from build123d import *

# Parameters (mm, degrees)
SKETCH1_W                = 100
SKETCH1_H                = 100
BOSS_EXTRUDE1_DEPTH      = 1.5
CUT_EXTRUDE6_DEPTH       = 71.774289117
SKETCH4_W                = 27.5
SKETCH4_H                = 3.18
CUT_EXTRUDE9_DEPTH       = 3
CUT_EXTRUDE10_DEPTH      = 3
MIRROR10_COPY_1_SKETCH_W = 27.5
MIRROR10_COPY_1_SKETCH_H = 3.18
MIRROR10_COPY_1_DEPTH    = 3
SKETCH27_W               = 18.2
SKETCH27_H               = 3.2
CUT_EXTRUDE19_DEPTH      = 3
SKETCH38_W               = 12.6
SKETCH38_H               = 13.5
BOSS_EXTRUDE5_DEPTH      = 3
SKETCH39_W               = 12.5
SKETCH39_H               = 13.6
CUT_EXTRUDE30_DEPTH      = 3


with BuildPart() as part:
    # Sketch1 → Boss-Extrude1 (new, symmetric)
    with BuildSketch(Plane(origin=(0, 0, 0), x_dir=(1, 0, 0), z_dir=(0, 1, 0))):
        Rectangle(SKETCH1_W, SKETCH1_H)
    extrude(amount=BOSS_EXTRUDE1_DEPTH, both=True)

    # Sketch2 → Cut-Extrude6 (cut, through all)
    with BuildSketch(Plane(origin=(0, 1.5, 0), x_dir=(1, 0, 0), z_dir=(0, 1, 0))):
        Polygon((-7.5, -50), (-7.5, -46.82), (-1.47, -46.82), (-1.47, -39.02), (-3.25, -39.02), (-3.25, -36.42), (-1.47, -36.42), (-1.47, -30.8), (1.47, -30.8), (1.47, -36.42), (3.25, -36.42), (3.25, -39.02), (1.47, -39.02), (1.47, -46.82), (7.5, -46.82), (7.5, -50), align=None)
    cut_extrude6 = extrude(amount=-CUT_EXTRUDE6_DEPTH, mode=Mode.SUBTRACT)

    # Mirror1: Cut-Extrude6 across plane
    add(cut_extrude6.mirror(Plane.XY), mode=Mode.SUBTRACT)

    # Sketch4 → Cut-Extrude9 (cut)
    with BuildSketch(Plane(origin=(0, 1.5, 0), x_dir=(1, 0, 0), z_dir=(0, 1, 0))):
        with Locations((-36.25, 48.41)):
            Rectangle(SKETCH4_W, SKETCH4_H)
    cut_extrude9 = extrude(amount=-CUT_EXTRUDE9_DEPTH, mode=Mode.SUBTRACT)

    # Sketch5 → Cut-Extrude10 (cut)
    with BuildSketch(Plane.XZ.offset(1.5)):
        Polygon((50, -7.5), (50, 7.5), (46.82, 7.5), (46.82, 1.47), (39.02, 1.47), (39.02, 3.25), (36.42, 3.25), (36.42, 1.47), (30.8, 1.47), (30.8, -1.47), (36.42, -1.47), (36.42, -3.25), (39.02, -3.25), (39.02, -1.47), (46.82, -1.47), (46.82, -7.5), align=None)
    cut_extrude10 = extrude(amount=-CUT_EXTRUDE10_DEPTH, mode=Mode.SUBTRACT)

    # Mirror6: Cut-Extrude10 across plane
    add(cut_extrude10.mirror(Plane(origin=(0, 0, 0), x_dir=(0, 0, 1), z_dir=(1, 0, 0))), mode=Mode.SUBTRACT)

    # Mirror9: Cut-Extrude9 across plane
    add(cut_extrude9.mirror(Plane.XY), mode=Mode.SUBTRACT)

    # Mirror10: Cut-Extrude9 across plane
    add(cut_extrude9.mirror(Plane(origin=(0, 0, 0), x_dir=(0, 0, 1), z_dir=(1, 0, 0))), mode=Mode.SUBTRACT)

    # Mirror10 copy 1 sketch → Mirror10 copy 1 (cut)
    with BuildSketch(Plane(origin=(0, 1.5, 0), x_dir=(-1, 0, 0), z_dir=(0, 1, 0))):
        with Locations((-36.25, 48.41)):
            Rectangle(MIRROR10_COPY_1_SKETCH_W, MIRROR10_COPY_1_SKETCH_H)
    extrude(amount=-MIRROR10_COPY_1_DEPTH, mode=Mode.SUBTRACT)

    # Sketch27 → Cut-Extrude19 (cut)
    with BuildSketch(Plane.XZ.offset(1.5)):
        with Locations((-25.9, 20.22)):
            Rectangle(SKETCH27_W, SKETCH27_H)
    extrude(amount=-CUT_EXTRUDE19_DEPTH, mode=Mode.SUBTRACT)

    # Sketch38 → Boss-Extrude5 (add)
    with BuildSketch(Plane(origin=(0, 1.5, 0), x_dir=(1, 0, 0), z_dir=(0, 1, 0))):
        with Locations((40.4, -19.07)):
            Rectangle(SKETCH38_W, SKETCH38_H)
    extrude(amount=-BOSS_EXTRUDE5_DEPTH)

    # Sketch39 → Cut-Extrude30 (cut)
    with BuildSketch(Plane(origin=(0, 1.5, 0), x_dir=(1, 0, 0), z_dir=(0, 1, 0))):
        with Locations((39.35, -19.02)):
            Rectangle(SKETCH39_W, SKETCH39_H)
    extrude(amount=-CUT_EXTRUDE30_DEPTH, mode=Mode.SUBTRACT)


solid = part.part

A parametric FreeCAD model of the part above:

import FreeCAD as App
import Part
import Sketcher
from FreeCAD import Vector
Q = App.Units.Quantity

doc = App.newDocument("Part")
body = doc.addObject("PartDesign::Body", "Body")

sketch1 = doc.addObject("Sketcher::SketchObject", "Sketch")
body.addObject(sketch1)
sketch1.AttachmentSupport = (doc.XZ_Plane, [""])
sketch1.MapMode = "FlatFace"
sketch1.addGeometry(Part.LineSegment(Vector(-50, -50, 0), Vector(-50, 50, 0)), False)
sketch1.addGeometry(Part.LineSegment(Vector(-50, 50, 0), Vector(50, 50, 0)), False)
sketch1.addGeometry(Part.LineSegment(Vector(50, 50, 0), Vector(50, -50, 0)), False)
sketch1.addGeometry(Part.LineSegment(Vector(50, -50, 0), Vector(-50, -50, 0)), False)
sketch1.addConstraint(Sketcher.Constraint("Coincident", 0, 2, 1, 1))
sketch1.addConstraint(Sketcher.Constraint("Coincident", 1, 2, 2, 1))
sketch1.addConstraint(Sketcher.Constraint("Coincident", 2, 2, 3, 1))
sketch1.addConstraint(Sketcher.Constraint("Coincident", 3, 2, 0, 1))
sketch1.addConstraint(Sketcher.Constraint("Vertical", 0))
sketch1.addConstraint(Sketcher.Constraint("Horizontal", 1))
sketch1.addConstraint(Sketcher.Constraint("Vertical", 2))
sketch1.addConstraint(Sketcher.Constraint("Horizontal", 3))
sketch1.addConstraint(Sketcher.Constraint("Symmetric", 0, 2, 2, 2, -1, 1))
sketch1.addConstraint(Sketcher.Constraint("Equal", 3, 0))
sketch1.addConstraint(Sketcher.Constraint("DistanceX", 1, 1, 1, 2, Q("100 mm")))
pad1 = doc.addObject("PartDesign::Pad", "Pad")
body.addObject(pad1)
pad1.Profile = sketch1
pad1.Length = 3
pad1.Midplane = True

sketch2 = doc.addObject("Sketcher::SketchObject", "Sketch001")
body.addObject(sketch2)
sketch2.AttachmentSupport = (doc.XZ_Plane, [""])
sketch2.MapMode = "FlatFace"
sketch2.AttachmentOffset = App.Placement(Vector(0, 0, -1.5), App.Rotation())
sketch2.addGeometry(Part.LineSegment(Vector(-7.5, 46.82, 0), Vector(-7.5, 50, 0)), False)
sketch2.addGeometry(Part.LineSegment(Vector(-7.5, 50, 0), Vector(7.5, 50, 0)), False)
sketch2.addGeometry(Part.LineSegment(Vector(7.5, 50, 0), Vector(7.5, 46.82, 0)), False)
sketch2.addGeometry(Part.LineSegment(Vector(7.5, 46.82, 0), Vector(1.47, 46.82, 0)), False)
sketch2.addGeometry(Part.LineSegment(Vector(1.47, 46.82, 0), Vector(1.47, 39.02, 0)), False)
sketch2.addGeometry(Part.LineSegment(Vector(1.47, 39.02, 0), Vector(3.25, 39.02, 0)), False)
sketch2.addGeometry(Part.LineSegment(Vector(3.25, 39.02, 0), Vector(3.25, 36.42, 0)), False)
sketch2.addGeometry(Part.LineSegment(Vector(3.25, 36.42, 0), Vector(1.47, 36.42, 0)), False)
sketch2.addGeometry(Part.LineSegment(Vector(1.47, 36.42, 0), Vector(1.47, 30.8, 0)), False)
sketch2.addGeometry(Part.LineSegment(Vector(1.47, 30.8, 0), Vector(-1.47, 30.8, 0)), False)
sketch2.addGeometry(Part.LineSegment(Vector(-1.47, 30.8, 0), Vector(-1.47, 36.42, 0)), False)
sketch2.addGeometry(Part.LineSegment(Vector(-1.47, 36.42, 0), Vector(-3.25, 36.42, 0)), False)
sketch2.addGeometry(Part.LineSegment(Vector(-3.25, 36.42, 0), Vector(-3.25, 39.02, 0)), False)
sketch2.addGeometry(Part.LineSegment(Vector(-3.25, 39.02, 0), Vector(-1.47, 39.02, 0)), False)
sketch2.addGeometry(Part.LineSegment(Vector(-1.47, 39.02, 0), Vector(-1.47, 46.82, 0)), False)
sketch2.addGeometry(Part.LineSegment(Vector(-1.47, 46.82, 0), Vector(-7.5, 46.82, 0)), False)
sketch2.addConstraint(Sketcher.Constraint("Coincident", 0, 2, 1, 1))
sketch2.addConstraint(Sketcher.Constraint("Coincident", 1, 2, 2, 1))
sketch2.addConstraint(Sketcher.Constraint("Coincident", 2, 2, 3, 1))
sketch2.addConstraint(Sketcher.Constraint("Coincident", 3, 2, 4, 1))
sketch2.addConstraint(Sketcher.Constraint("Coincident", 4, 2, 5, 1))
sketch2.addConstraint(Sketcher.Constraint("Coincident", 5, 2, 6, 1))
sketch2.addConstraint(Sketcher.Constraint("Coincident", 6, 2, 7, 1))
sketch2.addConstraint(Sketcher.Constraint("Coincident", 7, 2, 8, 1))
sketch2.addConstraint(Sketcher.Constraint("Coincident", 8, 2, 9, 1))
sketch2.addConstraint(Sketcher.Constraint("Coincident", 9, 2, 10, 1))
sketch2.addConstraint(Sketcher.Constraint("Coincident", 10, 2, 11, 1))
sketch2.addConstraint(Sketcher.Constraint("Coincident", 11, 2, 12, 1))
sketch2.addConstraint(Sketcher.Constraint("Coincident", 12, 2, 13, 1))
sketch2.addConstraint(Sketcher.Constraint("Coincident", 13, 2, 14, 1))
sketch2.addConstraint(Sketcher.Constraint("Coincident", 14, 2, 15, 1))
sketch2.addConstraint(Sketcher.Constraint("Coincident", 15, 2, 0, 1))
sketch2.addConstraint(Sketcher.Constraint("Vertical", 0))
sketch2.addConstraint(Sketcher.Constraint("Horizontal", 1))
sketch2.addConstraint(Sketcher.Constraint("Vertical", 2))
sketch2.addConstraint(Sketcher.Constraint("Horizontal", 3))
sketch2.addConstraint(Sketcher.Constraint("Vertical", 4))
sketch2.addConstraint(Sketcher.Constraint("Horizontal", 5))
sketch2.addConstraint(Sketcher.Constraint("Vertical", 6))
sketch2.addConstraint(Sketcher.Constraint("Horizontal", 7))
sketch2.addConstraint(Sketcher.Constraint("Vertical", 8))
sketch2.addConstraint(Sketcher.Constraint("Horizontal", 9))
sketch2.addConstraint(Sketcher.Constraint("Vertical", 10))
sketch2.addConstraint(Sketcher.Constraint("Horizontal", 11))
sketch2.addConstraint(Sketcher.Constraint("Vertical", 12))
sketch2.addConstraint(Sketcher.Constraint("Horizontal", 13))
sketch2.addConstraint(Sketcher.Constraint("Vertical", 14))
sketch2.addConstraint(Sketcher.Constraint("Horizontal", 15))
sketch2.addConstraint(Sketcher.Constraint("Symmetric", 7, 2, 10, 2, -2))
sketch2.addConstraint(Sketcher.Constraint("Symmetric", 5, 2, 12, 2, -2))
sketch2.addConstraint(Sketcher.Constraint("Symmetric", 3, 2, 14, 2, -2))
sketch2.addConstraint(Sketcher.Constraint("Vertical", 4, 2, 7, 2))
sketch2.addConstraint(Sketcher.Constraint("Equal", 3, 15))
sketch2.addConstraint(Sketcher.Constraint("DistanceX", 1, 1, 1, 2, Q("15 mm")))
sketch2.addConstraint(Sketcher.Constraint("DistanceY", 4, 2, 4, 1, Q("7.8 mm")))
sketch2.addConstraint(Sketcher.Constraint("DistanceY", 6, 2, 6, 1, Q("2.6 mm")))
sketch2.addConstraint(Sketcher.Constraint("DistanceY", -1, 1, 0, 2, Q("50 mm")))
sketch2.addConstraint(Sketcher.Constraint("DistanceX", 3, 2, 3, 1, Q("6.03 mm")))
sketch2.addConstraint(Sketcher.Constraint("DistanceX", 5, 1, 5, 2, Q("1.78 mm")))
sketch2.addConstraint(Sketcher.Constraint("DistanceY", 0, 1, 0, 2, Q("3.18 mm")))
sketch2.addConstraint(Sketcher.Constraint("DistanceY", 8, 2, 8, 1, Q("5.62 mm")))
pocket1 = doc.addObject("PartDesign::Pocket", "Pocket")
body.addObject(pocket1)
pocket1.Profile = sketch2
pocket1.Type = "ThroughAll"
pocket1.Reversed = True
doc.recompute()

mirrored = doc.addObject("PartDesign::Mirrored", "Mirrored")
body.addObject(mirrored)
mirrored.Originals = [pocket1]
mirrored.MirrorPlane = (doc.XY_Plane, [""])
body.Tip = mirrored

sketch3 = doc.addObject("Sketcher::SketchObject", "Sketch002")
body.addObject(sketch3)
sketch3.AttachmentSupport = (doc.XZ_Plane, [""])
sketch3.MapMode = "FlatFace"
sketch3.AttachmentOffset = App.Placement(Vector(0, 0, -1.5), App.Rotation())
sketch3.addGeometry(Part.LineSegment(Vector(-50, -50, 0), Vector(-50, -46.82, 0)), False)
sketch3.addGeometry(Part.LineSegment(Vector(-50, -46.82, 0), Vector(-22.5, -46.82, 0)), False)
sketch3.addGeometry(Part.LineSegment(Vector(-22.5, -46.82, 0), Vector(-22.5, -50, 0)), False)
sketch3.addGeometry(Part.LineSegment(Vector(-22.5, -50, 0), Vector(-50, -50, 0)), False)
sketch3.addConstraint(Sketcher.Constraint("Coincident", 0, 2, 1, 1))
sketch3.addConstraint(Sketcher.Constraint("Coincident", 1, 2, 2, 1))
sketch3.addConstraint(Sketcher.Constraint("Coincident", 2, 2, 3, 1))
sketch3.addConstraint(Sketcher.Constraint("Coincident", 3, 2, 0, 1))
sketch3.addConstraint(Sketcher.Constraint("Vertical", 0))
sketch3.addConstraint(Sketcher.Constraint("Horizontal", 1))
sketch3.addConstraint(Sketcher.Constraint("Vertical", 2))
sketch3.addConstraint(Sketcher.Constraint("Horizontal", 3))
sketch3.addConstraint(Sketcher.Constraint("DistanceX", 1, 1, 1, 2, Q("27.5 mm")))
sketch3.addConstraint(Sketcher.Constraint("DistanceX", 0, 2, -1, 1, Q("50 mm")))
sketch3.addConstraint(Sketcher.Constraint("DistanceY", 2, 2, -1, 1, Q("50 mm")))
sketch3.addConstraint(Sketcher.Constraint("DistanceY", 0, 1, 0, 2, Q("3.18 mm")))
pocket2 = doc.addObject("PartDesign::Pocket", "Pocket001")
body.addObject(pocket2)
pocket2.Profile = sketch3
pocket2.Length = 3
pocket2.Reversed = True

sketch4 = doc.addObject("Sketcher::SketchObject", "Sketch003")
body.addObject(sketch4)
sketch4.AttachmentSupport = (doc.XZ_Plane, [""])
sketch4.MapMode = "FlatFace"
sketch4.AttachmentOffset = App.Placement(Vector(0, 0, 1.5), App.Rotation())
sketch4.addGeometry(Part.LineSegment(Vector(50, -7.5, 0), Vector(50, 7.5, 0)), False)
sketch4.addGeometry(Part.LineSegment(Vector(50, 7.5, 0), Vector(46.82, 7.5, 0)), False)
sketch4.addGeometry(Part.LineSegment(Vector(46.82, 7.5, 0), Vector(46.82, 1.47, 0)), False)
sketch4.addGeometry(Part.LineSegment(Vector(46.82, 1.47, 0), Vector(39.02, 1.47, 0)), False)
sketch4.addGeometry(Part.LineSegment(Vector(39.02, 1.47, 0), Vector(39.02, 3.25, 0)), False)
sketch4.addGeometry(Part.LineSegment(Vector(39.02, 3.25, 0), Vector(36.42, 3.25, 0)), False)
sketch4.addGeometry(Part.LineSegment(Vector(36.42, 3.25, 0), Vector(36.42, 1.47, 0)), False)
sketch4.addGeometry(Part.LineSegment(Vector(36.42, 1.47, 0), Vector(30.8, 1.47, 0)), False)
sketch4.addGeometry(Part.LineSegment(Vector(30.8, 1.47, 0), Vector(30.8, -1.47, 0)), False)
sketch4.addGeometry(Part.LineSegment(Vector(30.8, -1.47, 0), Vector(36.42, -1.47, 0)), False)
sketch4.addGeometry(Part.LineSegment(Vector(36.42, -1.47, 0), Vector(36.42, -3.25, 0)), False)
sketch4.addGeometry(Part.LineSegment(Vector(36.42, -3.25, 0), Vector(39.02, -3.25, 0)), False)
sketch4.addGeometry(Part.LineSegment(Vector(39.02, -3.25, 0), Vector(39.02, -1.47, 0)), False)
sketch4.addGeometry(Part.LineSegment(Vector(39.02, -1.47, 0), Vector(46.82, -1.47, 0)), False)
sketch4.addGeometry(Part.LineSegment(Vector(46.82, -1.47, 0), Vector(46.82, -7.5, 0)), False)
sketch4.addGeometry(Part.LineSegment(Vector(46.82, -7.5, 0), Vector(50, -7.5, 0)), False)
sketch4.addConstraint(Sketcher.Constraint("Coincident", 0, 2, 1, 1))
sketch4.addConstraint(Sketcher.Constraint("Coincident", 1, 2, 2, 1))
sketch4.addConstraint(Sketcher.Constraint("Coincident", 2, 2, 3, 1))
sketch4.addConstraint(Sketcher.Constraint("Coincident", 3, 2, 4, 1))
sketch4.addConstraint(Sketcher.Constraint("Coincident", 4, 2, 5, 1))
sketch4.addConstraint(Sketcher.Constraint("Coincident", 5, 2, 6, 1))
sketch4.addConstraint(Sketcher.Constraint("Coincident", 6, 2, 7, 1))
sketch4.addConstraint(Sketcher.Constraint("Coincident", 7, 2, 8, 1))
sketch4.addConstraint(Sketcher.Constraint("Coincident", 8, 2, 9, 1))
sketch4.addConstraint(Sketcher.Constraint("Coincident", 9, 2, 10, 1))
sketch4.addConstraint(Sketcher.Constraint("Coincident", 10, 2, 11, 1))
sketch4.addConstraint(Sketcher.Constraint("Coincident", 11, 2, 12, 1))
sketch4.addConstraint(Sketcher.Constraint("Coincident", 12, 2, 13, 1))
sketch4.addConstraint(Sketcher.Constraint("Coincident", 13, 2, 14, 1))
sketch4.addConstraint(Sketcher.Constraint("Coincident", 14, 2, 15, 1))
sketch4.addConstraint(Sketcher.Constraint("Coincident", 15, 2, 0, 1))
sketch4.addConstraint(Sketcher.Constraint("Vertical", 0))
sketch4.addConstraint(Sketcher.Constraint("Horizontal", 1))
sketch4.addConstraint(Sketcher.Constraint("Vertical", 2))
sketch4.addConstraint(Sketcher.Constraint("Horizontal", 3))
sketch4.addConstraint(Sketcher.Constraint("Vertical", 4))
sketch4.addConstraint(Sketcher.Constraint("Horizontal", 5))
sketch4.addConstraint(Sketcher.Constraint("Vertical", 6))
sketch4.addConstraint(Sketcher.Constraint("Horizontal", 7))
sketch4.addConstraint(Sketcher.Constraint("Vertical", 8))
sketch4.addConstraint(Sketcher.Constraint("Horizontal", 9))
sketch4.addConstraint(Sketcher.Constraint("Vertical", 10))
sketch4.addConstraint(Sketcher.Constraint("Horizontal", 11))
sketch4.addConstraint(Sketcher.Constraint("Vertical", 12))
sketch4.addConstraint(Sketcher.Constraint("Horizontal", 13))
sketch4.addConstraint(Sketcher.Constraint("Vertical", 14))
sketch4.addConstraint(Sketcher.Constraint("Horizontal", 15))
sketch4.addConstraint(Sketcher.Constraint("Symmetric", 6, 2, 9, 2, -1))
sketch4.addConstraint(Sketcher.Constraint("Symmetric", 4, 2, 11, 2, -1))
sketch4.addConstraint(Sketcher.Constraint("Symmetric", 2, 2, 13, 2, -1))
sketch4.addConstraint(Sketcher.Constraint("Horizontal", 3, 2, 6, 2))
sketch4.addConstraint(Sketcher.Constraint("Equal", 2, 14))
sketch4.addConstraint(Sketcher.Constraint("DistanceY", 0, 1, 0, 2, Q("15 mm")))
sketch4.addConstraint(Sketcher.Constraint("DistanceX", 3, 2, 3, 1, Q("7.8 mm")))
sketch4.addConstraint(Sketcher.Constraint("DistanceX", 5, 2, 5, 1, Q("2.6 mm")))
sketch4.addConstraint(Sketcher.Constraint("DistanceX", -1, 1, 0, 2, Q("50 mm")))
sketch4.addConstraint(Sketcher.Constraint("DistanceX", 1, 2, 1, 1, Q("3.18 mm")))
sketch4.addConstraint(Sketcher.Constraint("DistanceX", 7, 2, 7, 1, Q("5.62 mm")))
sketch4.addConstraint(Sketcher.Constraint("DistanceY", 2, 2, 2, 1, Q("6.03 mm")))
sketch4.addConstraint(Sketcher.Constraint("DistanceY", 4, 1, 4, 2, Q("1.78 mm")))
pocket3 = doc.addObject("PartDesign::Pocket", "Pocket002")
body.addObject(pocket3)
pocket3.Profile = sketch4
pocket3.Length = 3
doc.recompute()

mirrored2 = doc.addObject("PartDesign::Mirrored", "Mirrored001")
body.addObject(mirrored2)
mirrored2.Originals = [pocket3]
mirrored2.MirrorPlane = (doc.YZ_Plane, [""])
body.Tip = mirrored2
doc.recompute()

mirrored3 = doc.addObject("PartDesign::Mirrored", "Mirrored002")
body.addObject(mirrored3)
mirrored3.Originals = [pocket2]
mirrored3.MirrorPlane = (doc.XY_Plane, [""])
body.Tip = mirrored3
doc.recompute()

mirrored4 = doc.addObject("PartDesign::Mirrored", "Mirrored003")
body.addObject(mirrored4)
mirrored4.Originals = [pocket2]
mirrored4.MirrorPlane = (doc.YZ_Plane, [""])
body.Tip = mirrored4

sketch5 = doc.addObject("Sketcher::SketchObject", "Sketch004")
body.addObject(sketch5)
sketch5.AttachmentSupport = (doc.XZ_Plane, [""])
sketch5.MapMode = "FlatFace"
sketch5.AttachmentOffset = App.Placement(Vector(0, 0, -1.5), App.Rotation())
sketch5.addGeometry(Part.LineSegment(Vector(50, 50, 0), Vector(50, 46.82, 0)), False)
sketch5.addGeometry(Part.LineSegment(Vector(50, 46.82, 0), Vector(22.5, 46.82, 0)), False)
sketch5.addGeometry(Part.LineSegment(Vector(22.5, 46.82, 0), Vector(22.5, 50, 0)), False)
sketch5.addGeometry(Part.LineSegment(Vector(22.5, 50, 0), Vector(50, 50, 0)), False)
sketch5.addConstraint(Sketcher.Constraint("Coincident", 0, 2, 1, 1))
sketch5.addConstraint(Sketcher.Constraint("Coincident", 1, 2, 2, 1))
sketch5.addConstraint(Sketcher.Constraint("Coincident", 2, 2, 3, 1))
sketch5.addConstraint(Sketcher.Constraint("Coincident", 3, 2, 0, 1))
sketch5.addConstraint(Sketcher.Constraint("Vertical", 0))
sketch5.addConstraint(Sketcher.Constraint("Horizontal", 1))
sketch5.addConstraint(Sketcher.Constraint("Vertical", 2))
sketch5.addConstraint(Sketcher.Constraint("Horizontal", 3))
sketch5.addConstraint(Sketcher.Constraint("DistanceX", 1, 2, 1, 1, Q("27.5 mm")))
sketch5.addConstraint(Sketcher.Constraint("DistanceX", -1, 1, 0, 2, Q("50 mm")))
sketch5.addConstraint(Sketcher.Constraint("DistanceY", -1, 1, 2, 2, Q("50 mm")))
sketch5.addConstraint(Sketcher.Constraint("DistanceY", 0, 2, 0, 1, Q("3.18 mm")))
pocket4 = doc.addObject("PartDesign::Pocket", "Pocket003")
body.addObject(pocket4)
pocket4.Profile = sketch5
pocket4.Length = 3
pocket4.Reversed = True

sketch6 = doc.addObject("Sketcher::SketchObject", "Sketch005")
body.addObject(sketch6)
sketch6.AttachmentSupport = (doc.XZ_Plane, [""])
sketch6.MapMode = "FlatFace"
sketch6.AttachmentOffset = App.Placement(Vector(0, 0, 1.5), App.Rotation())
sketch6.addGeometry(Part.LineSegment(Vector(-35, 21.82, 0), Vector(-35, 18.62, 0)), False)
sketch6.addGeometry(Part.LineSegment(Vector(-35, 18.62, 0), Vector(-16.8, 18.62, 0)), False)
sketch6.addGeometry(Part.LineSegment(Vector(-16.8, 18.62, 0), Vector(-16.8, 21.82, 0)), False)
sketch6.addGeometry(Part.LineSegment(Vector(-16.8, 21.82, 0), Vector(-35, 21.82, 0)), False)
sketch6.addConstraint(Sketcher.Constraint("Coincident", 0, 2, 1, 1))
sketch6.addConstraint(Sketcher.Constraint("Coincident", 1, 2, 2, 1))
sketch6.addConstraint(Sketcher.Constraint("Coincident", 2, 2, 3, 1))
sketch6.addConstraint(Sketcher.Constraint("Coincident", 3, 2, 0, 1))
sketch6.addConstraint(Sketcher.Constraint("Vertical", 0))
sketch6.addConstraint(Sketcher.Constraint("Horizontal", 1))
sketch6.addConstraint(Sketcher.Constraint("Vertical", 2))
sketch6.addConstraint(Sketcher.Constraint("Horizontal", 3))
sketch6.addConstraint(Sketcher.Constraint("DistanceX", 1, 1, 1, 2, Q("18.2 mm")))
sketch6.addConstraint(Sketcher.Constraint("DistanceY", 0, 2, 0, 1, Q("3.2 mm")))
sketch6.addConstraint(Sketcher.Constraint("DistanceX", 0, 2, -1, 1, Q("35 mm")))
sketch6.addConstraint(Sketcher.Constraint("DistanceY", -1, 1, 0, 2, Q("18.62 mm")))
pocket5 = doc.addObject("PartDesign::Pocket", "Pocket004")
body.addObject(pocket5)
pocket5.Profile = sketch6
pocket5.Length = 3

sketch7 = doc.addObject("Sketcher::SketchObject", "Sketch006")
body.addObject(sketch7)
sketch7.AttachmentSupport = (doc.XZ_Plane, [""])
sketch7.MapMode = "FlatFace"
sketch7.AttachmentOffset = App.Placement(Vector(0, 0, -1.5), App.Rotation())
sketch7.addGeometry(Part.LineSegment(Vector(34.1, 12.32, 0), Vector(34.1, 25.82, 0)), False)
sketch7.addGeometry(Part.LineSegment(Vector(34.1, 25.82, 0), Vector(46.7, 25.82, 0)), False)
sketch7.addGeometry(Part.LineSegment(Vector(46.7, 25.82, 0), Vector(46.7, 12.32, 0)), False)
sketch7.addGeometry(Part.LineSegment(Vector(46.7, 12.32, 0), Vector(34.1, 12.32, 0)), False)
sketch7.addConstraint(Sketcher.Constraint("Coincident", 0, 2, 1, 1))
sketch7.addConstraint(Sketcher.Constraint("Coincident", 1, 2, 2, 1))
sketch7.addConstraint(Sketcher.Constraint("Coincident", 2, 2, 3, 1))
sketch7.addConstraint(Sketcher.Constraint("Coincident", 3, 2, 0, 1))
sketch7.addConstraint(Sketcher.Constraint("Vertical", 0))
sketch7.addConstraint(Sketcher.Constraint("Horizontal", 1))
sketch7.addConstraint(Sketcher.Constraint("Vertical", 2))
sketch7.addConstraint(Sketcher.Constraint("Horizontal", 3))
sketch7.addConstraint(Sketcher.Constraint("DistanceX", 1, 1, 1, 2, Q("12.6 mm")))
sketch7.addConstraint(Sketcher.Constraint("DistanceY", 0, 1, 0, 2, Q("13.5 mm")))
sketch7.addConstraint(Sketcher.Constraint("DistanceX", -1, 1, 0, 2, Q("34.1 mm")))
sketch7.addConstraint(Sketcher.Constraint("DistanceY", -1, 1, 0, 2, Q("25.82 mm")))
pad2 = doc.addObject("PartDesign::Pad", "Pad001")
body.addObject(pad2)
pad2.Profile = sketch7
pad2.Length = 3

sketch8 = doc.addObject("Sketcher::SketchObject", "Sketch007")
body.addObject(sketch8)
sketch8.AttachmentSupport = (doc.XZ_Plane, [""])
sketch8.MapMode = "FlatFace"
sketch8.AttachmentOffset = App.Placement(Vector(0, 0, -1.5), App.Rotation())
sketch8.addGeometry(Part.LineSegment(Vector(33.1, 12.22, 0), Vector(33.1, 25.82, 0)), False)
sketch8.addGeometry(Part.LineSegment(Vector(33.1, 25.82, 0), Vector(45.6, 25.82, 0)), False)
sketch8.addGeometry(Part.LineSegment(Vector(45.6, 25.82, 0), Vector(45.6, 12.22, 0)), False)
sketch8.addGeometry(Part.LineSegment(Vector(45.6, 12.22, 0), Vector(33.1, 12.22, 0)), False)
sketch8.addConstraint(Sketcher.Constraint("Coincident", 0, 2, 1, 1))
sketch8.addConstraint(Sketcher.Constraint("Coincident", 1, 2, 2, 1))
sketch8.addConstraint(Sketcher.Constraint("Coincident", 2, 2, 3, 1))
sketch8.addConstraint(Sketcher.Constraint("Coincident", 3, 2, 0, 1))
sketch8.addConstraint(Sketcher.Constraint("Vertical", 0))
sketch8.addConstraint(Sketcher.Constraint("Horizontal", 1))
sketch8.addConstraint(Sketcher.Constraint("Vertical", 2))
sketch8.addConstraint(Sketcher.Constraint("Horizontal", 3))
sketch8.addConstraint(Sketcher.Constraint("DistanceX", 1, 1, 1, 2, Q("12.5 mm")))
sketch8.addConstraint(Sketcher.Constraint("DistanceY", 0, 1, 0, 2, Q("13.6 mm")))
sketch8.addConstraint(Sketcher.Constraint("DistanceX", -1, 1, 0, 2, Q("33.1 mm")))
sketch8.addConstraint(Sketcher.Constraint("DistanceY", -1, 1, 0, 2, Q("25.82 mm")))
pocket6 = doc.addObject("PartDesign::Pocket", "Pocket005")
body.addObject(pocket6)
pocket6.Profile = sketch8
pocket6.Length = 3
pocket6.Reversed = True

doc.recompute()
